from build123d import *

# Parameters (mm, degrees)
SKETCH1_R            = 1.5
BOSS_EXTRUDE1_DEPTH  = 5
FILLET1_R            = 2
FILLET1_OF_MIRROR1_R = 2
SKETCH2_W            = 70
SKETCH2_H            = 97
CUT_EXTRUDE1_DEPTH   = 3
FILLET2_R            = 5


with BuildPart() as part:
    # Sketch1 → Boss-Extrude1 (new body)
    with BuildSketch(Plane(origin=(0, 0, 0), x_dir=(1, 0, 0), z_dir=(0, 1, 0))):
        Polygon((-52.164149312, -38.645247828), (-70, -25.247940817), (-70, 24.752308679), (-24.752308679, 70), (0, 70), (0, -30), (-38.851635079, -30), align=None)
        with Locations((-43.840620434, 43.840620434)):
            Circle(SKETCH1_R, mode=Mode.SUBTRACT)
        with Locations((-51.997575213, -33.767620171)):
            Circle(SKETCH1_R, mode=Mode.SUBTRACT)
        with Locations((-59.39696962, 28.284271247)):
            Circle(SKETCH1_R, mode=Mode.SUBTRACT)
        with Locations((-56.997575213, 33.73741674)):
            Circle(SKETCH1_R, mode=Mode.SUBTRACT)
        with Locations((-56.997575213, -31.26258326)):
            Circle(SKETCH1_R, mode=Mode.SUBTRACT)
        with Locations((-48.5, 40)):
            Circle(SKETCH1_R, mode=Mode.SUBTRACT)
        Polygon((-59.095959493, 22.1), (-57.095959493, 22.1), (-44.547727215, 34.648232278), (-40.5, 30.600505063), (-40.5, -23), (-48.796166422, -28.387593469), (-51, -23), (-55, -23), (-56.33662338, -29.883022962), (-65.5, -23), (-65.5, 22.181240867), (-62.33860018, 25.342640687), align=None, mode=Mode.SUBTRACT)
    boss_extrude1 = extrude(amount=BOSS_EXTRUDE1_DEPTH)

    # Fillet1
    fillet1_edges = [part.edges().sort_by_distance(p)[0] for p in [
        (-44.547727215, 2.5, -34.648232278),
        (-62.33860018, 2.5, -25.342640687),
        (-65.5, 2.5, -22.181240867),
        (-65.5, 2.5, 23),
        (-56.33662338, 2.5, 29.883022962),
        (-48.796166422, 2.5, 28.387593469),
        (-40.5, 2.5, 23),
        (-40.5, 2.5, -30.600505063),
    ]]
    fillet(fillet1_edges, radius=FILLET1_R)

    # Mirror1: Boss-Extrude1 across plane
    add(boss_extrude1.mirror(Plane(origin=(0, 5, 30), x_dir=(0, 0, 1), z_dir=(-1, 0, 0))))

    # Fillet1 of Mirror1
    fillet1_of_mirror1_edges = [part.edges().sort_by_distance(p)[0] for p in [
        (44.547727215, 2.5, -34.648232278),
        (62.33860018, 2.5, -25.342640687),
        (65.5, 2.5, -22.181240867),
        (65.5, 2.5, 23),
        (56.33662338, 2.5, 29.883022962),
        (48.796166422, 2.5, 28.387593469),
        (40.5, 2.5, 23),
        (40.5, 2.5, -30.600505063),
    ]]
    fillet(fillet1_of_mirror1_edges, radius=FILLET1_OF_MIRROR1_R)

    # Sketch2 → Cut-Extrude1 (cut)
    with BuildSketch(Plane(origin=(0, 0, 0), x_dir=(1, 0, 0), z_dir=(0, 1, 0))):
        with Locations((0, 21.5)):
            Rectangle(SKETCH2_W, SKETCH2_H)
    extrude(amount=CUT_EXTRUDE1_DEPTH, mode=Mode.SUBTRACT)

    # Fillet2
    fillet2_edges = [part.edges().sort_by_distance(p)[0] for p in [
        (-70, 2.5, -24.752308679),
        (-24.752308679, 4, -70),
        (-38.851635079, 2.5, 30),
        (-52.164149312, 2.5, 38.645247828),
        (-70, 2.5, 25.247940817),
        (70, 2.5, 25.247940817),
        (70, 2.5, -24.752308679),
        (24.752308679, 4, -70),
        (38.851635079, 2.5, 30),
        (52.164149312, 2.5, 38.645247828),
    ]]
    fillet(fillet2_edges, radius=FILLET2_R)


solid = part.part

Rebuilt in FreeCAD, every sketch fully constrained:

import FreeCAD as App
import Part
import Sketcher
from FreeCAD import Vector
Q = App.Units.Quantity


def edges_at(feature, points):
    """Names of the edges that pass closest to the given points."""
    edges = feature.Shape.Edges
    near = lambda p: min(range(len(edges)), key=lambda i: edges[i].distToShape(Part.Vertex(*p))[0])
    return sorted({f"Edge{near(p) + 1}" for p in points})


def add_polygon(sketch, points):
    """Adds a closed chain of lines whose ends are joined by coincident constraints."""
    first, n = sketch.GeometryCount, len(points)
    for a, b in zip(points, points[1:] + points[:1]):
        sketch.addGeometry(Part.LineSegment(App.Vector(*a, 0), App.Vector(*b, 0)), False)
    for i in range(n):
        sketch.addConstraint(Sketcher.Constraint("Coincident", first + i, 2, first + (i + 1) % n, 1))

doc = App.newDocument("Part")
params = doc.addObject("Spreadsheet::Sheet", "Params")
for row, (alias, value) in enumerate([
    ("sketch1_diameter", "3 mm"),
    ("sketch1_width", "2 mm"),
    ("sketch1_width2", "4 mm"),
    ("sketch1_height", "100 mm"),
    ("pad1_length", "5 mm"),
    ("fillet_radius", "2 mm"),
    ("fillet2_radius", "2 mm"),
    ("sketch2_width", "70 mm"),
    ("sketch2_height", "97 mm"),
    ("pocket1_length", "3 mm"),
    ("fillet3_radius", "5 mm"),
], start=1):
    params.set(f"A{row}", alias)
    params.set(f"B{row}", "=" + value)
    params.setAlias(f"B{row}", alias)

body = doc.addObject("PartDesign::Body", "Body")

# Sketch on XZ plane
sketch1 = body.newObject("Sketcher::SketchObject", "Sketch")
sketch1.AttachmentSupport = (doc.getObject("XZ_Plane"), [""])
sketch1.MapMode = "FlatFace"
add_polygon(sketch1, [(-70, 25.2), (-52.2, 38.6), (-38.9, 30), (0, 30), (0, -70), (-24.8, -70), (-70, -24.8)])  # lines 0-6
sketch1.addGeometry(Part.Circle(Vector(-52, 33.8, 0), Vector(0, 0, 1), 1.5), False)  # 7
sketch1.addGeometry(Part.Circle(Vector(-57, 31.3, 0), Vector(0, 0, 1), 1.5), False)  # 8
add_polygon(sketch1, [(-59.1, -22.1), (-57.1, -22.1), (-44.5, -34.6), (-40.5, -30.6), (-40.5, 23), (-48.8, 28.4), (-51, 23), (-55, 23), (-56.3, 29.9), (-65.5, 23), (-65.5, -22.2), (-62.3, -25.3)])  # lines 9-20
sketch1.addGeometry(Part.Circle(Vector(-43.8, -43.8, 0), Vector(0, 0, 1), 1.5), False)  # 21
sketch1.addGeometry(Part.Circle(Vector(-48.5, -40, 0), Vector(0, 0, 1), 1.5), False)  # 22
sketch1.addGeometry(Part.Circle(Vector(-57, -33.7, 0), Vector(0, 0, 1), 1.5), False)  # 23
sketch1.addGeometry(Part.Circle(Vector(-59.4, -28.3, 0), Vector(0, 0, 1), 1.5), False)  # 24
sketch1.addConstraint([
    Sketcher.Constraint("Horizontal", 2),
    Sketcher.Constraint("Vertical", 3),
    Sketcher.Constraint("Horizontal", 4),
    Sketcher.Constraint("Vertical", 6),
    Sketcher.Constraint("Horizontal", 9),
    Sketcher.Constraint("Vertical", 12),
    Sketcher.Constraint("Horizontal", 15),
    Sketcher.Constraint("Vertical", 18),
    Sketcher.Constraint("Equal", 7, 8),
    Sketcher.Constraint("Equal", 8, 21),
    Sketcher.Constraint("Equal", 21, 22),
    Sketcher.Constraint("Equal", 22, 23),
    Sketcher.Constraint("Equal", 23, 24),
    Sketcher.Constraint("PointOnObject", 2, 2, -2),
    Sketcher.Constraint("Parallel", 5, 10),
    Sketcher.Constraint("Perpendicular", 10, 11),
    Sketcher.Constraint("Parallel", 1, 13),
    Sketcher.Constraint("Parallel", 0, 17),
    Sketcher.Constraint("Perpendicular", 11, 19),
    Sketcher.Constraint("Perpendicular", 19, 20),
    Sketcher.Constraint("Horizontal", 12, 2, 14, 2),
    Sketcher.Constraint("Horizontal", 15, 2, 17, 2),
    Sketcher.Constraint("Vertical", 8, 3, 23, 3),
    Sketcher.Constraint("Diameter", 7, 3.0),
    Sketcher.Constraint("DistanceX", 9, 1, 9, 2, 2.0),
    Sketcher.Constraint("DistanceX", 15, 2, 15, 1, 4.0),
    Sketcher.Constraint("DistanceY", 3, 2, 3, 1, 100.0),
    Sketcher.Constraint("Angle", 1, Q("-33 deg")),
    Sketcher.Constraint("Angle", 5, Q("135 deg")),
    Sketcher.Constraint("DistanceY", 22, 3, -1, 1, 40.0),
    Sketcher.Constraint("DistanceY", -1, 1, 1, 2, 30.0),
    Sketcher.Constraint("DistanceX", 5, 2, -1, 1, 70.0),
    Sketcher.Constraint("DistanceY", -1, 1, 12, 2, 23.0),
    Sketcher.Constraint("DistanceX", 14, 2, -1, 1, 51.0),
    Sketcher.Constraint("DistanceX", 8, 3, 7, 3, 5.0),
    Sketcher.Constraint("DistanceY", 23, 3, 8, 3, 65.0),
    Sketcher.Constraint("DistanceX", 22, 3, 11, 2, 8.0),
    Sketcher.Constraint("DistanceX", 22, 3, -1, 1, 48.5),
    Sketcher.Constraint("DistanceY", 9, 2, -1, 1, 22.1),
    Sketcher.Constraint("DistanceX", 17, 2, -1, 1, 65.5),
    Sketcher.Constraint("Distance", 5, 63.989899),
    Sketcher.Constraint("DistanceY", 6, 1, 6, 2, 50.000249),
    Sketcher.Constraint("DistanceY", 18, 2, 18, 1, 45.181241),
    Sketcher.Constraint("DistanceX", 19, 2, -1, 1, 62.3386),
    Sketcher.Constraint("Distance", 0, 22.307071),
    Sketcher.Constraint("Distance", 10, 17.74588),
    Sketcher.Constraint("Distance", 17, 11.460518),
    Sketcher.Constraint("DistanceX", 2, 1, 2, 2, 38.851635),
    Sketcher.Constraint("DistanceY", -1, 1, 7, 3, 33.76762),
    Sketcher.Constraint("DistanceX", 21, 3, -1, 1, 43.84062),
    Sketcher.Constraint("DistanceY", 21, 3, -1, 1, 43.84062),
    Sketcher.Constraint("DistanceX", 24, 3, -1, 1, 59.39697),
    Sketcher.Constraint("DistanceY", 24, 3, -1, 1, 28.284271),
    Sketcher.Constraint("DistanceX", 7, 3, 1, 2, 13.14594),
    Sketcher.Constraint("DistanceY", 23, 3, 5, 2, 8.985108),
    Sketcher.Constraint("DistanceX", 7, 3, 13, 2, 3.201409),
])
sketch1.setExpression("Constraints[42]", "Params.sketch1_diameter")
sketch1.setExpression("Constraints[43]", "Params.sketch1_width")
sketch1.setExpression("Constraints[44]", "Params.sketch1_width2")
sketch1.setExpression("Constraints[45]", "Params.sketch1_height")
pad1 = body.newObject("PartDesign::Pad", "Pad")
pad1.Profile = sketch1
pad1.setExpression("Length", "Params.pad1_length")
pad1.Reversed = True
doc.recompute()

fillet = body.newObject("PartDesign::Fillet", "Fillet")
fillet.Base = (pad1, edges_at(pad1, [
    (-44.548, 2.5, -34.648),
    (-62.339, 2.5, -25.343),
    (-65.5, 2.5, -22.181),
    (-65.5, 2.5, 23),
    (-56.337, 2.5, 29.883),
    (-48.796, 2.5, 28.388),
    (-40.5, 2.5, 23),
    (-40.5, 2.5, -30.601),
]))
fillet.setExpression("Radius", "Params.fillet_radius")
doc.recompute()

mirrored = body.newObject("PartDesign::Mirrored", "Mirrored")
mirrored.Originals = [pad1]
mirrored.MirrorPlane = (doc.getObject("YZ_Plane"), [""])
body.Tip = mirrored
doc.recompute()

fillet2 = body.newObject("PartDesign::Fillet", "Fillet001")
fillet2.Base = (mirrored, edges_at(mirrored, [
    (44.548, 2.5, -34.648),
    (62.339, 2.5, -25.343),
    (65.5, 2.5, -22.181),
    (65.5, 2.5, 23),
    (56.337, 2.5, 29.883),
    (48.796, 2.5, 28.388),
    (40.5, 2.5, 23),
    (40.5, 2.5, -30.601),
]))
fillet2.setExpression("Radius", "Params.fillet2_radius")

# Sketch on XZ plane
sketch2 = body.newObject("Sketcher::SketchObject", "Sketch001")
sketch2.AttachmentSupport = (doc.getObject("XZ_Plane"), [""])
sketch2.MapMode = "FlatFace"
add_polygon(sketch2, [(-35, -70), (-35, 27), (35, 27), (35, -70)])  # lines 0-3
sketch2.addConstraint([
    Sketcher.Constraint("Vertical", 0),
    Sketcher.Constraint("Horizontal", 1),
    Sketcher.Constraint("Vertical", 2),
    Sketcher.Constraint("Horizontal", 3),
    Sketcher.Constraint("DistanceX", 1, 1, 1, 2, 70.0),
    Sketcher.Constraint("DistanceY", 0, 1, 0, 2, 97.0),
    Sketcher.Constraint("DistanceX", 0, 2, -1, 1, 35.0),
    Sketcher.Constraint("DistanceY", -1, 1, 0, 2, 27.0),
])
sketch2.setExpression("Constraints[8]", "Params.sketch2_width")
sketch2.setExpression("Constraints[9]", "Params.sketch2_height")
pocket1 = body.newObject("PartDesign::Pocket", "Pocket")
pocket1.Profile = sketch2
pocket1.setExpression("Length", "Params.pocket1_length")
doc.recompute()

fillet3 = body.newObject("PartDesign::Fillet", "Fillet002")
fillet3.Base = (pocket1, edges_at(pocket1, [
    (-70, 2.5, -24.752),
    (-24.752, 4, -70),
    (-38.852, 2.5, 30),
    (-52.164, 2.5, 38.645),
    (-70, 2.5, 25.248),
    (70, 2.5, 25.248),
    (70, 2.5, -24.752),
    (24.752, 4, -70),
    (38.852, 2.5, 30),
    (52.164, 2.5, 38.645),
]))
fillet3.setExpression("Radius", "Params.fillet3_radius")

doc.recompute()
